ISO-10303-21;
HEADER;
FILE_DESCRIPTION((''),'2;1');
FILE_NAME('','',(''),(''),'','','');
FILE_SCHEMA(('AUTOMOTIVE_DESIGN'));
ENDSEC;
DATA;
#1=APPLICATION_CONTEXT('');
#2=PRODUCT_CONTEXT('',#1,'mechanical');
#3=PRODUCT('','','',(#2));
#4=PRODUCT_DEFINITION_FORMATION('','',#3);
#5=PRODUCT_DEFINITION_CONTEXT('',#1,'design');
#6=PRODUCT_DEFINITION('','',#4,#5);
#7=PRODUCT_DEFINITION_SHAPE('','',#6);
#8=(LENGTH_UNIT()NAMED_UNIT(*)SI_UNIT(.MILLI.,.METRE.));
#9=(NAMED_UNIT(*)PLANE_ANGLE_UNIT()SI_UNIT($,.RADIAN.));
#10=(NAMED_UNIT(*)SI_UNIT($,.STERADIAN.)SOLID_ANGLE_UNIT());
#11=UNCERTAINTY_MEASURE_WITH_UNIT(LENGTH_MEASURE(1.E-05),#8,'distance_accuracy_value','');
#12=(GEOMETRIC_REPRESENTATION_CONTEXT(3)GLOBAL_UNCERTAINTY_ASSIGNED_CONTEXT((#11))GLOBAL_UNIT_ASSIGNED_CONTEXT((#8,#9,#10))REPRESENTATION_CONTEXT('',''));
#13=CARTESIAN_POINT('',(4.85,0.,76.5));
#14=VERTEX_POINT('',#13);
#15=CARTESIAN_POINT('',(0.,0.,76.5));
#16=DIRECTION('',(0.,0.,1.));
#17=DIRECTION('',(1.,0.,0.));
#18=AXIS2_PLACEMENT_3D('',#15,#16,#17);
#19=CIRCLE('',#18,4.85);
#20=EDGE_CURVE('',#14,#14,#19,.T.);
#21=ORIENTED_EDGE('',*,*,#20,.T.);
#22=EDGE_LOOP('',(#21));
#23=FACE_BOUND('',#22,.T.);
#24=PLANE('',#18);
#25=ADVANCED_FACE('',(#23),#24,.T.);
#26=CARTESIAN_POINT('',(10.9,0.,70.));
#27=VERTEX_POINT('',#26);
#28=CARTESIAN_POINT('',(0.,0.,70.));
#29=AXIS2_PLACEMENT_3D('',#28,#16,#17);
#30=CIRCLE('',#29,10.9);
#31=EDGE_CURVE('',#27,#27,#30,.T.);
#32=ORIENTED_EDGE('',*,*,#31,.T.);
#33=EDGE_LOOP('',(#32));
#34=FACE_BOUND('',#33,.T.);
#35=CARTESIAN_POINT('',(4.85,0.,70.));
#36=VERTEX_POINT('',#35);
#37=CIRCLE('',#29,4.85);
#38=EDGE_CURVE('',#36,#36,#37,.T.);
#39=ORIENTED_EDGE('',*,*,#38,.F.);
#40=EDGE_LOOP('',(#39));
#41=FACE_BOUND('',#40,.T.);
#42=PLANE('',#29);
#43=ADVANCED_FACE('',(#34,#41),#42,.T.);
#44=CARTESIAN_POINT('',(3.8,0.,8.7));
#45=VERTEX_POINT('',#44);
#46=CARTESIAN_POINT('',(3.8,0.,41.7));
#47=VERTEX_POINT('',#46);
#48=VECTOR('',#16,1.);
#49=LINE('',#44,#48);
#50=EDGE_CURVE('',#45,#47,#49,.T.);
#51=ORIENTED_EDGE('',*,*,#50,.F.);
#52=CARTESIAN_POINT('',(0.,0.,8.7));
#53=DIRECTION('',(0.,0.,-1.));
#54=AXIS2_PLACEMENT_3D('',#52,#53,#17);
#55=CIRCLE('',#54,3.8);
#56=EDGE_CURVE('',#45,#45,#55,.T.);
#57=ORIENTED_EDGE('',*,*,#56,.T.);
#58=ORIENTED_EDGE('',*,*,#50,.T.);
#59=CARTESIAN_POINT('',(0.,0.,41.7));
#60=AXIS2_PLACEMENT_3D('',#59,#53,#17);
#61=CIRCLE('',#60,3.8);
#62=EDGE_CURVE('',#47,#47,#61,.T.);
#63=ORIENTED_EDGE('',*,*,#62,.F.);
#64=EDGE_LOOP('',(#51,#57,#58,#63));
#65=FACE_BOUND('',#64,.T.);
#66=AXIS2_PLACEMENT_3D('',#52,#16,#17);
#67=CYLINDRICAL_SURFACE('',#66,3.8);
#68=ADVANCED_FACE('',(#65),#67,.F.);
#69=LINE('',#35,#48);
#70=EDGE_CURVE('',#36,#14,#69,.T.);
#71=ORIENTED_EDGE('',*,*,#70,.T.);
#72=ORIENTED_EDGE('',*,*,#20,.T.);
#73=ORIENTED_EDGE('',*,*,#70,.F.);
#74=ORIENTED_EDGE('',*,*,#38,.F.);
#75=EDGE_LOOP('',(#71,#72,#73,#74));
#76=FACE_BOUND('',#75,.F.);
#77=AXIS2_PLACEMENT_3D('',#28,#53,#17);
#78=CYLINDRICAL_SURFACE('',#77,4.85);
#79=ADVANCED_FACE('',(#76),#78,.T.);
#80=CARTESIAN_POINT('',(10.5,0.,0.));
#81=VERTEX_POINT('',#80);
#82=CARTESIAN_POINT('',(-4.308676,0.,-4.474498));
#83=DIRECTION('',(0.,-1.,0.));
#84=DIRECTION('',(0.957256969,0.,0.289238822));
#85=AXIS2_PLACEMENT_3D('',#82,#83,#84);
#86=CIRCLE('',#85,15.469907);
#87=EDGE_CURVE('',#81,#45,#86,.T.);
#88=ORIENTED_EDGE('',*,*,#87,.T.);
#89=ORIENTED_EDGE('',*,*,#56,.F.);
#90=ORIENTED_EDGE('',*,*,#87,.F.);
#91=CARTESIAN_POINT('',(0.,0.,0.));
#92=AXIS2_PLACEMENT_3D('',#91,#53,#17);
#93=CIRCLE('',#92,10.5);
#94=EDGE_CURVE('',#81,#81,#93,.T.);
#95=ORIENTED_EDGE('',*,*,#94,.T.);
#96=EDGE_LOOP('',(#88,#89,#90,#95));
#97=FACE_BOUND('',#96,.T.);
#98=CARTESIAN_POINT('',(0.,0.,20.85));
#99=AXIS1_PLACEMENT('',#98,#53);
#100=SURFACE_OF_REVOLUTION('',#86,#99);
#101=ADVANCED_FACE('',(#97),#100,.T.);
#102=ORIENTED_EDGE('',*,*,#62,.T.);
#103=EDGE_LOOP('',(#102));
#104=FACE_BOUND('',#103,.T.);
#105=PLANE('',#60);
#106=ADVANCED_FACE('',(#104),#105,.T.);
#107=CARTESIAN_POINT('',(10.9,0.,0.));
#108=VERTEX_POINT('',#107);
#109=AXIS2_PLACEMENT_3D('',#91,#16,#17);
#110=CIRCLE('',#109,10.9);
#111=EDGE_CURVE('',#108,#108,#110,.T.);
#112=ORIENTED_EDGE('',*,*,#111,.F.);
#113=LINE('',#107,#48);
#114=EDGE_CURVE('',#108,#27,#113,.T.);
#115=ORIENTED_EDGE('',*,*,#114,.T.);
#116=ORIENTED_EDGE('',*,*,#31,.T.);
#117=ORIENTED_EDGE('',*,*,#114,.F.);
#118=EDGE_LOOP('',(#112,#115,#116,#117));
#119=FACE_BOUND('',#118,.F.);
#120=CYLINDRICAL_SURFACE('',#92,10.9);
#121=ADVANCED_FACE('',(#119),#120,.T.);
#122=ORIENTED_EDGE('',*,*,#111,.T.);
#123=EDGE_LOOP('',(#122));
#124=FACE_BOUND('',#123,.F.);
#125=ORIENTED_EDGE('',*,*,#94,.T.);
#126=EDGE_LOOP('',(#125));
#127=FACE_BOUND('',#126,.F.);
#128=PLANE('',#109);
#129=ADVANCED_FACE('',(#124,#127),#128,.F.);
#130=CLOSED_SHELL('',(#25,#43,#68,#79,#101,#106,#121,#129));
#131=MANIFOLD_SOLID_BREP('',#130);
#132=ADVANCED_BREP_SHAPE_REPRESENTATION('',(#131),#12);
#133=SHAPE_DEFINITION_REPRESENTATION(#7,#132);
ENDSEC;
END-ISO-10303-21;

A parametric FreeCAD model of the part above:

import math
import FreeCAD as App
import Part
import Sketcher
from FreeCAD import Vector

doc = App.newDocument("Part")
body = doc.addObject("PartDesign::Body", "Body")

# Sketch on XY plane
sketch1 = body.newObject("Sketcher::SketchObject", "Sketch")
sketch1.AttachmentSupport = (doc.getObject("XY_Plane"), [""])
sketch1.MapMode = "FlatFace"
sketch1.addGeometry(Part.Circle(Vector(0, 0, 0), Vector(0, 0, 1), 11), False)
sketch1.addConstraint([
    Sketcher.Constraint("Coincident", 0, 3, -1, 1),
    Sketcher.Constraint("Diameter", 0, 21.8),
])
pad1 = body.newObject("PartDesign::Pad", "Pad")
pad1.Profile = sketch1
pad1.Length = 70

# Sketch on XZ plane
sketch2 = body.newObject("Sketcher::SketchObject", "Sketch001")
sketch2.AttachmentSupport = (doc.getObject("XZ_Plane"), [""])
sketch2.MapMode = "FlatFace"
sketch2.addGeometry([
    Part.LineSegment(Vector(0, 41.7, 0), Vector(0, 0, 0)),  # 0
    Part.LineSegment(Vector(0, 0, 0), Vector(10.5, 0, 0)),  # 1
    Part.ArcOfCircle(Part.Circle(Vector(-4.3, -4.5, 0), Vector(0, 0, 1), 15.5), math.radians(17), math.radians(58)),  # 2
    Part.LineSegment(Vector(3.8, 8.7, 0), Vector(3.8, 41.7, 0)),  # 3
    Part.LineSegment(Vector(3.8, 41.7, 0), Vector(0, 41.7, 0)),  # 4
], False)
sketch2.addConstraint([
    Sketcher.Constraint("Coincident", 0, 2, 1, 1),
    Sketcher.Constraint("Coincident", 1, 2, 2, 1),
    Sketcher.Constraint("Coincident", 2, 2, 3, 1),
    Sketcher.Constraint("Coincident", 3, 2, 4, 1),
    Sketcher.Constraint("Coincident", 4, 2, 0, 1),
    Sketcher.Constraint("Vertical", 0),
    Sketcher.Constraint("Horizontal", 1),
    Sketcher.Constraint("Vertical", 3),
    Sketcher.Constraint("Horizontal", 4),
    Sketcher.Constraint("Coincident", 0, 2, -1, 1),
    Sketcher.Constraint("DistanceY", 3, 1, 3, 2, 33.0),
    Sketcher.Constraint("DistanceX", 1, 1, 1, 2, 10.5),
    Sketcher.Constraint("DistanceX", 4, 2, 4, 1, 3.8),
    Sketcher.Constraint("DistanceY", 0, 2, 0, 1, 41.7),
    Sketcher.Constraint("Radius", 2, 15.469907),
])
groove = body.newObject("PartDesign::Groove", "Groove")
groove.Profile = sketch2
groove.ReferenceAxis = (sketch2, ["V_Axis"])
groove.Angle = 360

# Sketch on XY plane
sketch3 = body.newObject("Sketcher::SketchObject", "Sketch002")
sketch3.AttachmentSupport = (doc.getObject("XY_Plane"), [""])
sketch3.MapMode = "FlatFace"
sketch3.AttachmentOffset = App.Placement(Vector(0, 0, 70), App.Rotation())
sketch3.addGeometry(Part.Circle(Vector(0, 0, 0), Vector(0, 0, 1), 4.8), False)
sketch3.addConstraint([
    Sketcher.Constraint("Coincident", 0, 3, -1, 1),
    Sketcher.Constraint("Diameter", 0, 9.7),
])
pad2 = body.newObject("PartDesign::Pad", "Pad001")
pad2.Profile = sketch3
pad2.Length = 6.5

doc.recompute()
